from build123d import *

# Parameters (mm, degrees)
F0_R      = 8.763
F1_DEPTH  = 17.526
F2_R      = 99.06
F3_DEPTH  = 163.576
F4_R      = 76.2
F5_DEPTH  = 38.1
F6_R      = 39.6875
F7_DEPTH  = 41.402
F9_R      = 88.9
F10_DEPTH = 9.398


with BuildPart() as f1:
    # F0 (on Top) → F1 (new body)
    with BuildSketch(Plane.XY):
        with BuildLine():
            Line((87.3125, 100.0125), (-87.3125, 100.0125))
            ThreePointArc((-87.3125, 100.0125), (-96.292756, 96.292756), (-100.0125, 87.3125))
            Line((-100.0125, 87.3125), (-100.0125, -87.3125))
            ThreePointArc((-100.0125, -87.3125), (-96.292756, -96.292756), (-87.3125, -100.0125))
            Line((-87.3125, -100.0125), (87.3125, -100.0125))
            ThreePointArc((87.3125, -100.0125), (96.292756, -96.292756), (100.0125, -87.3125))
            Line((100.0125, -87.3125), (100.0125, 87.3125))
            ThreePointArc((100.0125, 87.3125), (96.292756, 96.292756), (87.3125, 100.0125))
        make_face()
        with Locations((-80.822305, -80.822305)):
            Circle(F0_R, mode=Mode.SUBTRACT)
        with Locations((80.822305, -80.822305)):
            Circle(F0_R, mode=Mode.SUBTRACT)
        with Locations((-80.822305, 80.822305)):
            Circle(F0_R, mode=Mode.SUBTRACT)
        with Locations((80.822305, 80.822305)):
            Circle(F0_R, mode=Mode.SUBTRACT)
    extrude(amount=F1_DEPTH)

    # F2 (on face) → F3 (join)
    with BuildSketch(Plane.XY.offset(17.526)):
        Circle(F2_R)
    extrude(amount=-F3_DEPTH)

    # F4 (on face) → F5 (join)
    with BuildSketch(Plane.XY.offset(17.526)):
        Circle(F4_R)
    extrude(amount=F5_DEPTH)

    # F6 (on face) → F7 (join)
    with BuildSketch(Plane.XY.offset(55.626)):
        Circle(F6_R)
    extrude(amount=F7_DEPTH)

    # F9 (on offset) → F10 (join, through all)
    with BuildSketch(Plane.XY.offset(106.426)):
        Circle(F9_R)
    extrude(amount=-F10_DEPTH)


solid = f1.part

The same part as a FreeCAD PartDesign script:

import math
import FreeCAD as App
import Part
import Sketcher
from FreeCAD import Vector
Q = App.Units.Quantity

doc = App.newDocument("Part")
body = doc.addObject("PartDesign::Body", "Body")

# Sketch on XY plane
sketch1 = body.newObject("Sketcher::SketchObject", "Sketch")
sketch1.AttachmentSupport = (doc.getObject("XY_Plane"), [""])
sketch1.MapMode = "FlatFace"
sketch1.addGeometry(Part.LineSegment(Vector(87, 100, 0), Vector(-87, 100, 0)), False)
sketch1.addGeometry(Part.ArcOfCircle(Part.Circle(Vector(-87, 87, 0), Vector(0, 0, 1), 13), math.radians(90), math.radians(180)), False)
sketch1.addGeometry(Part.LineSegment(Vector(-100, 87, 0), Vector(-100, -87, 0)), False)
sketch1.addGeometry(Part.ArcOfCircle(Part.Circle(Vector(-87, -87, 0), Vector(0, 0, 1), 13), math.radians(-180), math.radians(-90)), False)
sketch1.addGeometry(Part.LineSegment(Vector(-87, -100, 0), Vector(87, -100, 0)), False)
sketch1.addGeometry(Part.ArcOfCircle(Part.Circle(Vector(87, -87, 0), Vector(0, 0, 1), 13), math.radians(-90), math.radians(0)), False)
sketch1.addGeometry(Part.LineSegment(Vector(100, -87, 0), Vector(100, 87, 0)), False)
sketch1.addGeometry(Part.ArcOfCircle(Part.Circle(Vector(87, 87, 0), Vector(0, 0, 1), 13), math.radians(0), math.radians(90)), False)
sketch1.addGeometry(Part.Circle(Vector(-81, -81, 0), Vector(0, 0, 1), 9), False)
sketch1.addGeometry(Part.Circle(Vector(81, -81, 0), Vector(0, 0, 1), 9), False)
sketch1.addGeometry(Part.Circle(Vector(-81, 81, 0), Vector(0, 0, 1), 9), False)
sketch1.addGeometry(Part.Circle(Vector(81, 81, 0), Vector(0, 0, 1), 9), False)
sketch1.addConstraint(Sketcher.Constraint("Tangent", 0, 2, 1, 1))
sketch1.addConstraint(Sketcher.Constraint("Tangent", 1, 2, 2, 1))
sketch1.addConstraint(Sketcher.Constraint("Tangent", 2, 2, 3, 1))
sketch1.addConstraint(Sketcher.Constraint("Tangent", 3, 2, 4, 1))
sketch1.addConstraint(Sketcher.Constraint("Tangent", 4, 2, 5, 1))
sketch1.addConstraint(Sketcher.Constraint("Tangent", 5, 2, 6, 1))
sketch1.addConstraint(Sketcher.Constraint("Tangent", 6, 2, 7, 1))
sketch1.addConstraint(Sketcher.Constraint("Tangent", 7, 2, 0, 1))
sketch1.addConstraint(Sketcher.Constraint("Horizontal", 0))
sketch1.addConstraint(Sketcher.Constraint("Vertical", 2))
sketch1.addConstraint(Sketcher.Constraint("Horizontal", 4))
sketch1.addConstraint(Sketcher.Constraint("Vertical", 6))
sketch1.addConstraint(Sketcher.Constraint("Equal", 1, 3))
sketch1.addConstraint(Sketcher.Constraint("Equal", 3, 5))
sketch1.addConstraint(Sketcher.Constraint("Equal", 5, 7))
sketch1.addConstraint(Sketcher.Constraint("Equal", 8, 9))
sketch1.addConstraint(Sketcher.Constraint("Equal", 9, 10))
sketch1.addConstraint(Sketcher.Constraint("Equal", 10, 11))
sketch1.addConstraint(Sketcher.Constraint("Symmetric", 1, 3, 5, 3, -1, 1))
sketch1.addConstraint(Sketcher.Constraint("Symmetric", 9, 3, 10, 3, -1, 1))
sketch1.addConstraint(Sketcher.Constraint("Symmetric", 8, 3, 11, 3, -1, 1))
sketch1.addConstraint(Sketcher.Constraint("Symmetric", 8, 3, 9, 3, -2))
sketch1.addConstraint(Sketcher.Constraint("Equal", 4, 2))
sketch1.addConstraint(Sketcher.Constraint("Radius", 1, Q("0.5 in")))
sketch1.addConstraint(Sketcher.Constraint("Diameter", 8, Q("0.69 in")))
sketch1.addConstraint(Sketcher.Constraint("DistanceX", 0, 2, 0, 1, Q("6.875 in")))
sketch1.addConstraint(Sketcher.Constraint("DistanceX", 8, 3, 9, 3, 161.64461))
sketch1.addConstraint(Sketcher.Constraint("DistanceY", 8, 3, 10, 3, 161.64461))
pad1 = body.newObject("PartDesign::Pad", "Pad")
pad1.Profile = sketch1
pad1.Length = Q("0.69 in")

# Sketch on XY plane
sketch2 = body.newObject("Sketcher::SketchObject", "Sketch001")
sketch2.AttachmentSupport = (doc.getObject("XY_Plane"), [""])
sketch2.MapMode = "FlatFace"
sketch2.AttachmentOffset = App.Placement(Vector(0, 0, 0.69 * 25.4), App.Rotation())
sketch2.addGeometry(Part.Circle(Vector(0, 0, 0), Vector(0, 0, 1), 99), False)
sketch2.addConstraint(Sketcher.Constraint("Coincident", 0, 3, -1, 1))
sketch2.addConstraint(Sketcher.Constraint("Diameter", 0, Q("7.8 in")))
pad2 = body.newObject("PartDesign::Pad", "Pad001")
pad2.Profile = sketch2
pad2.Length = Q("6.44 in")
pad2.Reversed = True

# Sketch on XY plane
sketch3 = body.newObject("Sketcher::SketchObject", "Sketch002")
sketch3.AttachmentSupport = (doc.getObject("XY_Plane"), [""])
sketch3.MapMode = "FlatFace"
sketch3.AttachmentOffset = App.Placement(Vector(0, 0, 0.69 * 25.4), App.Rotation())
sketch3.addGeometry(Part.Circle(Vector(0, 0, 0), Vector(0, 0, 1), 76), False)
sketch3.addConstraint(Sketcher.Constraint("Coincident", 0, 3, -1, 1))
sketch3.addConstraint(Sketcher.Constraint("Diameter", 0, Q("6 in")))
pad3 = body.newObject("PartDesign::Pad", "Pad002")
pad3.Profile = sketch3
pad3.Length = Q("1.5 in")

# Sketch on XY plane
sketch4 = body.newObject("Sketcher::SketchObject", "Sketch003")
sketch4.AttachmentSupport = (doc.getObject("XY_Plane"), [""])
sketch4.MapMode = "FlatFace"
sketch4.AttachmentOffset = App.Placement(Vector(0, 0, 2.19 * 25.4), App.Rotation())
sketch4.addGeometry(Part.Circle(Vector(0, 0, 0), Vector(0, 0, 1), 40), False)
sketch4.addConstraint(Sketcher.Constraint("Coincident", 0, 3, -1, 1))
sketch4.addConstraint(Sketcher.Constraint("Diameter", 0, Q("3.125 in")))
pad4 = body.newObject("PartDesign::Pad", "Pad003")
pad4.Profile = sketch4
pad4.Length = Q("1.63 in")

# Sketch on XY plane
sketch5 = body.newObject("Sketcher::SketchObject", "Sketch004")
sketch5.AttachmentSupport = (doc.getObject("XY_Plane"), [""])
sketch5.MapMode = "FlatFace"
sketch5.AttachmentOffset = App.Placement(Vector(0, 0, 4.19 * 25.4), App.Rotation())
sketch5.addGeometry(Part.Circle(Vector(0, 0, 0), Vector(0, 0, 1), 89), False)
sketch5.addConstraint(Sketcher.Constraint("Coincident", 0, 3, -1, 1))
sketch5.addConstraint(Sketcher.Constraint("Diameter", 0, Q("7 in")))
pad5 = body.newObject("PartDesign::Pad", "Pad004")
pad5.Profile = sketch5
pad5.Length = Q("0.37 in")
pad5.Reversed = True

doc.recompute()
